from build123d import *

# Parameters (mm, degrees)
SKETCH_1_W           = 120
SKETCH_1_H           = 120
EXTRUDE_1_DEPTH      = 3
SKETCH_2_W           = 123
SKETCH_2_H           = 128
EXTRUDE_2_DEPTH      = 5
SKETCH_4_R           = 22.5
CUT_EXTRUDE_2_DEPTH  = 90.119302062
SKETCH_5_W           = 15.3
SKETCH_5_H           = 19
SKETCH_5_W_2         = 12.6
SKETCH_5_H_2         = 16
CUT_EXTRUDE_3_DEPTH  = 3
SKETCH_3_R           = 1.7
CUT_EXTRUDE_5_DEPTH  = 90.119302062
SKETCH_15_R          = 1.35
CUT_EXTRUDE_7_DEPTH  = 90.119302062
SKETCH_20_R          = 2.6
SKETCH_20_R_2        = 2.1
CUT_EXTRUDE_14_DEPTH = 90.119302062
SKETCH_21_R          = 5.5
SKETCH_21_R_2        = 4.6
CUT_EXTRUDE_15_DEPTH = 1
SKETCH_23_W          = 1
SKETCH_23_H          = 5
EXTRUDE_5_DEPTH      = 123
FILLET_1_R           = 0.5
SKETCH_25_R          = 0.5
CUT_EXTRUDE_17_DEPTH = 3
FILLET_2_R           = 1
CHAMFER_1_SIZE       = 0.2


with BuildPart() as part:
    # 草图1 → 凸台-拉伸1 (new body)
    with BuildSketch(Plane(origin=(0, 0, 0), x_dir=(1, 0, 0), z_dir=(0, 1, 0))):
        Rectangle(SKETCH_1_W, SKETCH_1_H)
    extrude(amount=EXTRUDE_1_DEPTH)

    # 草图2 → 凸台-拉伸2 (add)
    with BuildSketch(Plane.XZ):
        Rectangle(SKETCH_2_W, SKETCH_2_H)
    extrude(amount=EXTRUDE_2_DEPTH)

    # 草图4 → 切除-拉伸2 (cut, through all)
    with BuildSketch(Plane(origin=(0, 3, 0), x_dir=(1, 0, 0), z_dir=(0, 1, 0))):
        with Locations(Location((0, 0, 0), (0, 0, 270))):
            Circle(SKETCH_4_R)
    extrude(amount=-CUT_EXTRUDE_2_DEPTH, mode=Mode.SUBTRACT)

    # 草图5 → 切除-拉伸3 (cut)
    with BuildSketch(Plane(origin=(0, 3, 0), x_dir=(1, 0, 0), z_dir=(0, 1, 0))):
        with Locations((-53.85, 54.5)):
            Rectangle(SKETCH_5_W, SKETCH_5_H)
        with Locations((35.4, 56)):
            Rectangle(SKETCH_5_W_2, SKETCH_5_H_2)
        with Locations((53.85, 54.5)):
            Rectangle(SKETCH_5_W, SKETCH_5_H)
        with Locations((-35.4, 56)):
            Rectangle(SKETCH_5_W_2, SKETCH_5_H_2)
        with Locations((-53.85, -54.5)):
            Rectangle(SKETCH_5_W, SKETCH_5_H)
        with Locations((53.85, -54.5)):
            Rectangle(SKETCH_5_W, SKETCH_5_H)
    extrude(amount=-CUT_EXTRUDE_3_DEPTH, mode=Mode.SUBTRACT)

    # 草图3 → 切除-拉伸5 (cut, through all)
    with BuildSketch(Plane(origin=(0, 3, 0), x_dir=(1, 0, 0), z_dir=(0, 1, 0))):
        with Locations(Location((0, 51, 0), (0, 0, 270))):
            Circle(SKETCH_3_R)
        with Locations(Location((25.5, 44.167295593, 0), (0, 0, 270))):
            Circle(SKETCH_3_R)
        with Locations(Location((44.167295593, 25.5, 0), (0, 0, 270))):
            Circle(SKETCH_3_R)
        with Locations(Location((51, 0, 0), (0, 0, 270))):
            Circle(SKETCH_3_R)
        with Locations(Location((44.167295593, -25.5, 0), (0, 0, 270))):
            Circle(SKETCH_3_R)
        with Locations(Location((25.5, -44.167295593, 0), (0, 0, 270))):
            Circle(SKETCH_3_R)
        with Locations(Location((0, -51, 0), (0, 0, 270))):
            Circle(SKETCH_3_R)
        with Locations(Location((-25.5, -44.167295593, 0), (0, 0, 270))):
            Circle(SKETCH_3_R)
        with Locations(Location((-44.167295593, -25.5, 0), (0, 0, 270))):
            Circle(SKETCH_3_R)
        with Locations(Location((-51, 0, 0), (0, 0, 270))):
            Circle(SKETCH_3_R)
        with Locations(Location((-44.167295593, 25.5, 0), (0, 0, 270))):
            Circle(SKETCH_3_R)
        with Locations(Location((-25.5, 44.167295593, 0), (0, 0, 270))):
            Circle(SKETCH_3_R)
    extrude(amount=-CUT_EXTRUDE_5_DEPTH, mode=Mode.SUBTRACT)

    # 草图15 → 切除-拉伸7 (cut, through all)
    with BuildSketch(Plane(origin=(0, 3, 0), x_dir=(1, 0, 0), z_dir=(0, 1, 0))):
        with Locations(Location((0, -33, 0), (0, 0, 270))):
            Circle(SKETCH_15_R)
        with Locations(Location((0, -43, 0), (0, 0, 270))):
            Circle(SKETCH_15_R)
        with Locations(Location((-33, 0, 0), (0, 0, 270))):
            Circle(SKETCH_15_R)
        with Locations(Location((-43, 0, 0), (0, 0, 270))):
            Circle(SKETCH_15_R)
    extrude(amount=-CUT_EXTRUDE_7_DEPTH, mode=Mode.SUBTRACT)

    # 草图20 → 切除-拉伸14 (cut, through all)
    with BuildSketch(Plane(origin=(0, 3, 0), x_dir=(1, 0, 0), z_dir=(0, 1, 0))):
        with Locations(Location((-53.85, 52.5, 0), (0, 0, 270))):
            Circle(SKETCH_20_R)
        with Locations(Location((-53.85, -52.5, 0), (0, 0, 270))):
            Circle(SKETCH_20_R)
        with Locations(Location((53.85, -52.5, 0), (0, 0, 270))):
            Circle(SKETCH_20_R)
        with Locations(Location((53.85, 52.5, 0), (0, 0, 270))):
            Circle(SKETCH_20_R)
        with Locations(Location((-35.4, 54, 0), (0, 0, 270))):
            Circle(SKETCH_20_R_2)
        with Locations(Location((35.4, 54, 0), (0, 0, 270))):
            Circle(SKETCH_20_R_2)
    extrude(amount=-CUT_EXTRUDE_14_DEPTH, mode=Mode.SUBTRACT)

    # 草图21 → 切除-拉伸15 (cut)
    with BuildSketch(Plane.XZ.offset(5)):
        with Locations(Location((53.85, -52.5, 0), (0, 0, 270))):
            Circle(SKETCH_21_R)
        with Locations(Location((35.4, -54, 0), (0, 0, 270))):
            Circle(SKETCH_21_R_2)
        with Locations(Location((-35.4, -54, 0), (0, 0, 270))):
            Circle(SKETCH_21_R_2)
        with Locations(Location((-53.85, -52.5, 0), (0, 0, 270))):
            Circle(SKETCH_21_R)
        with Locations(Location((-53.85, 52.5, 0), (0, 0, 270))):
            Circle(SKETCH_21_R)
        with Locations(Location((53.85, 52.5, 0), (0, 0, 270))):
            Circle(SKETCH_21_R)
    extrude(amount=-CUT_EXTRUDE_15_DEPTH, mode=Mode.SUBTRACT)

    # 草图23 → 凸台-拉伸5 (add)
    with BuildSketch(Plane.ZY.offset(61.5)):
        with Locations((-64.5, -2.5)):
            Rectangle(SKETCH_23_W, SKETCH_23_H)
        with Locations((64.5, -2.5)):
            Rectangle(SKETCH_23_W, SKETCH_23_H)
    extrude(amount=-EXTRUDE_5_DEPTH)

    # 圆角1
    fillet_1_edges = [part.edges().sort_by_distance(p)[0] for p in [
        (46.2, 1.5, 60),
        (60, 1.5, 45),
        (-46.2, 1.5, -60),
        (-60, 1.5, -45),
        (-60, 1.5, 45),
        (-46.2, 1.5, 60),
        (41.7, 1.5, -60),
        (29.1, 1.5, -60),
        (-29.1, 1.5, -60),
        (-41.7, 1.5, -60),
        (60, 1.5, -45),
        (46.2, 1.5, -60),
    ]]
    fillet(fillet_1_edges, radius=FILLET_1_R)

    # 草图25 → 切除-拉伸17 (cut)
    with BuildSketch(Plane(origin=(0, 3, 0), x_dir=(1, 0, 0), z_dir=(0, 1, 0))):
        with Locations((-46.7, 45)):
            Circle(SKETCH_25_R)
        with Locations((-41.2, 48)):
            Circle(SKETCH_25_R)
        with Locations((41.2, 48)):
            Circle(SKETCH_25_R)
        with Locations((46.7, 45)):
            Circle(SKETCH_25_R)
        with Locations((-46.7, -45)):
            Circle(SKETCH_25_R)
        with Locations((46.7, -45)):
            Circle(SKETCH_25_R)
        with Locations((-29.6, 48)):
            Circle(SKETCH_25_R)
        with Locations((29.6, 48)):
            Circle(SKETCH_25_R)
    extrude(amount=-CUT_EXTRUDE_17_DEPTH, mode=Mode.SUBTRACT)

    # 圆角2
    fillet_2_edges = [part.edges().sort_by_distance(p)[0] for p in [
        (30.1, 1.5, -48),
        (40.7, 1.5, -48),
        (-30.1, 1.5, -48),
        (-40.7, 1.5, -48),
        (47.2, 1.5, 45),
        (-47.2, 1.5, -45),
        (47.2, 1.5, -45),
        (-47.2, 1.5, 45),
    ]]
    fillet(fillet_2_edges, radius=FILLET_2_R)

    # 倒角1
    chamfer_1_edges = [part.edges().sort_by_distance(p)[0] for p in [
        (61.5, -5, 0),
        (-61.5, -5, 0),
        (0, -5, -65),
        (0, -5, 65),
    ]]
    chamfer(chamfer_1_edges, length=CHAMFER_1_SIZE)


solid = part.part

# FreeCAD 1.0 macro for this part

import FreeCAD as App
import Part
import Sketcher
Q = App.Units.Quantity


def edges_at(feature, points):
    """Names of the edges that pass closest to the given points."""
    edges = feature.Shape.Edges
    near = lambda p: min(range(len(edges)), key=lambda i: edges[i].distToShape(Part.Vertex(*p))[0])
    return sorted({f"Edge{near(p) + 1}" for p in points})


def add_polygon(sketch, points):
    """Adds a closed chain of lines whose ends are joined by coincident constraints."""
    first, n = sketch.GeometryCount, len(points)
    for a, b in zip(points, points[1:] + points[:1]):
        sketch.addGeometry(Part.LineSegment(App.Vector(*a, 0), App.Vector(*b, 0)), False)
    for i in range(n):
        sketch.addConstraint(Sketcher.Constraint("Coincident", first + i, 2, first + (i + 1) % n, 1))

doc = App.newDocument("Part")
body = doc.addObject("PartDesign::Body", "Body")

sketch1 = body.newObject("Sketcher::SketchObject", "Sketch")
sketch1.AttachmentSupport = (doc.getObject("XZ_Plane"), [""])
sketch1.MapMode = "FlatFace"
add_polygon(sketch1, [(-60, -60), (-60, 60), (60, 60), (60, -60)])
sketch1.addConstraint([
    Sketcher.Constraint("Vertical", 0),
    Sketcher.Constraint("Horizontal", 1),
    Sketcher.Constraint("Vertical", 2),
    Sketcher.Constraint("Horizontal", 3),
    Sketcher.Constraint("Symmetric", 0, 2, 2, 2, -1, 1),
    Sketcher.Constraint("Equal", 3, 0),
    Sketcher.Constraint("DistanceX", 1, 1, 1, 2, Q("120 mm")),
])
pad1 = body.newObject("PartDesign::Pad", "Pad")
pad1.Profile = sketch1
pad1.Length = 3
pad1.Reversed = True

sketch2 = body.newObject("Sketcher::SketchObject", "Sketch001")
sketch2.AttachmentSupport = (doc.getObject("XZ_Plane"), [""])
sketch2.MapMode = "FlatFace"
add_polygon(sketch2, [(-62, 64), (-62, -64), (62, -64), (62, 64)])
sketch2.addConstraint([
    Sketcher.Constraint("Vertical", 0),
    Sketcher.Constraint("Horizontal", 1),
    Sketcher.Constraint("Vertical", 2),
    Sketcher.Constraint("Horizontal", 3),
    Sketcher.Constraint("Symmetric", 0, 2, 2, 2, -1, 1),
    Sketcher.Constraint("DistanceX", 1, 1, 1, 2, Q("123 mm")),
    Sketcher.Constraint("DistanceY", 0, 2, 0, 1, Q("128 mm")),
])
pad2 = body.newObject("PartDesign::Pad", "Pad001")
pad2.Profile = sketch2
pad2.Length = 5

sketch3 = body.newObject("Sketcher::SketchObject", "Sketch002")
sketch3.AttachmentSupport = (doc.getObject("XZ_Plane"), [""])
sketch3.MapMode = "FlatFace"
sketch3.AttachmentOffset = App.Placement(App.Vector(0, 0, -3), App.Rotation())
sketch3.addGeometry(Part.Circle(App.Vector(0, 0, 0), App.Vector(0, 0, 1), 22), False)
sketch3.addConstraint([
    Sketcher.Constraint("Coincident", 0, 3, -1, 1),
    Sketcher.Constraint("Diameter", 0, Q("45 mm")),
])
pocket1 = body.newObject("PartDesign::Pocket", "Pocket")
pocket1.Profile = sketch3
pocket1.Type = "ThroughAll"
pocket1.Reversed = True

sketch4 = body.newObject("Sketcher::SketchObject", "Sketch003")
sketch4.AttachmentSupport = (doc.getObject("XZ_Plane"), [""])
sketch4.MapMode = "FlatFace"
sketch4.AttachmentOffset = App.Placement(App.Vector(0, 0, -3), App.Rotation())
add_polygon(sketch4, [(-62, -64), (-62, -45), (-46, -45), (-46, -64)])
add_polygon(sketch4, [(29, -64), (29, -48), (42, -48), (42, -64)])
add_polygon(sketch4, [(46, -64), (46, -45), (62, -45), (62, -64)])
add_polygon(sketch4, [(-42, -64), (-42, -48), (-29, -48), (-29, -64)])
add_polygon(sketch4, [(-62, 45), (-62, 64), (-46, 64), (-46, 45)])
add_polygon(sketch4, [(46, 45), (46, 64), (62, 64), (62, 45)])
sketch4.addConstraint([
    Sketcher.Constraint("Vertical", 0),
    Sketcher.Constraint("Horizontal", 1),
    Sketcher.Constraint("Vertical", 2),
    Sketcher.Constraint("Horizontal", 3),
    Sketcher.Constraint("Vertical", 4),
    Sketcher.Constraint("Horizontal", 5),
    Sketcher.Constraint("Vertical", 6),
    Sketcher.Constraint("Horizontal", 7),
    Sketcher.Constraint("Vertical", 8),
    Sketcher.Constraint("Horizontal", 9),
    Sketcher.Constraint("Vertical", 10),
    Sketcher.Constraint("Horizontal", 11),
    Sketcher.Constraint("Vertical", 12),
    Sketcher.Constraint("Horizontal", 13),
    Sketcher.Constraint("Vertical", 14),
    Sketcher.Constraint("Horizontal", 15),
    Sketcher.Constraint("Vertical", 16),
    Sketcher.Constraint("Horizontal", 17),
    Sketcher.Constraint("Vertical", 18),
    Sketcher.Constraint("Horizontal", 19),
    Sketcher.Constraint("Vertical", 20),
    Sketcher.Constraint("Horizontal", 21),
    Sketcher.Constraint("Vertical", 22),
    Sketcher.Constraint("Horizontal", 23),
    Sketcher.Constraint("Symmetric", 10, 2, 16, 2, -1, 1),
    Sketcher.Constraint("Symmetric", 8, 2, 18, 2, -1, 1),
    Sketcher.Constraint("Symmetric", 2, 2, 20, 2, -1, 1),
    Sketcher.Constraint("Symmetric", 0, 2, 22, 2, -1, 1),
    Sketcher.Constraint("Symmetric", 1, 2, 8, 2, -2),
    Sketcher.Constraint("Symmetric", 3, 2, 10, 2, -2),
    Sketcher.Constraint("Symmetric", 5, 2, 12, 2, -2),
    Sketcher.Constraint("Symmetric", 7, 2, 14, 2, -2),
    Sketcher.Constraint("Horizontal", 3, 2, 6, 2),
    Sketcher.Constraint("DistanceY", 0, 1, 0, 2, Q("19 mm")),
    Sketcher.Constraint("DistanceY", 4, 1, 4, 2, Q("16 mm")),
    Sketcher.Constraint("DistanceX", 1, 1, 1, 2, Q("15.3 mm")),
    Sketcher.Constraint("DistanceX", 5, 1, 5, 2, Q("12.6 mm")),
    Sketcher.Constraint("DistanceY", 0, 2, -1, 1, Q("45 mm")),
    Sketcher.Constraint("DistanceX", 0, 2, -1, 1, Q("61.5 mm")),
    Sketcher.Constraint("DistanceX", -1, 1, 4, 2, Q("29.1 mm")),
])
pocket2 = body.newObject("PartDesign::Pocket", "Pocket001")
pocket2.Profile = sketch4
pocket2.Length = 3
pocket2.Reversed = True

sketch5 = body.newObject("Sketcher::SketchObject", "Sketch004")
sketch5.AttachmentSupport = (doc.getObject("XZ_Plane"), [""])
sketch5.MapMode = "FlatFace"
sketch5.AttachmentOffset = App.Placement(App.Vector(0, 0, -3), App.Rotation())
sketch5.addGeometry([
    Part.Circle(App.Vector(0, -51, 0), App.Vector(0, 0, 1), 1.7),
    Part.Circle(App.Vector(25.5, -44.2, 0), App.Vector(0, 0, 1), 1.7),
    Part.Circle(App.Vector(44.2, -25.5, 0), App.Vector(0, 0, 1), 1.7),
    Part.Circle(App.Vector(51, 0, 0), App.Vector(0, 0, 1), 1.7),
    Part.Circle(App.Vector(44.2, 25.5, 0), App.Vector(0, 0, 1), 1.7),
    Part.Circle(App.Vector(25.5, 44.2, 0), App.Vector(0, 0, 1), 1.7),
    Part.Circle(App.Vector(0, 51, 0), App.Vector(0, 0, 1), 1.7),
    Part.Circle(App.Vector(-25.5, 44.2, 0), App.Vector(0, 0, 1), 1.7),
    Part.Circle(App.Vector(-44.2, 25.5, 0), App.Vector(0, 0, 1), 1.7),
    Part.Circle(App.Vector(-51, 0, 0), App.Vector(0, 0, 1), 1.7),
    Part.Circle(App.Vector(-44.2, -25.5, 0), App.Vector(0, 0, 1), 1.7),
    Part.Circle(App.Vector(-25.5, -44.2, 0), App.Vector(0, 0, 1), 1.7),
], False)
sketch5.addConstraint([
    Sketcher.Constraint("Equal", 0, 1),
    Sketcher.Constraint("Equal", 1, 2),
    Sketcher.Constraint("Equal", 2, 3),
    Sketcher.Constraint("Equal", 3, 4),
    Sketcher.Constraint("Equal", 4, 5),
    Sketcher.Constraint("Equal", 5, 6),
    Sketcher.Constraint("Equal", 6, 7),
    Sketcher.Constraint("Equal", 7, 8),
    Sketcher.Constraint("Equal", 8, 9),
    Sketcher.Constraint("Equal", 9, 10),
    Sketcher.Constraint("Equal", 10, 11),
    Sketcher.Constraint("Symmetric", 0, 3, 6, 3, -1, 1),
    Sketcher.Constraint("Symmetric", 1, 3, 7, 3, -1, 1),
    Sketcher.Constraint("Symmetric", 2, 3, 8, 3, -1, 1),
    Sketcher.Constraint("Symmetric", 3, 3, 9, 3, -1, 1),
    Sketcher.Constraint("Symmetric", 4, 3, 10, 3, -1, 1),
    Sketcher.Constraint("Symmetric", 5, 3, 11, 3, -1, 1),
    Sketcher.Constraint("Symmetric", 5, 3, 7, 3, -2),
    Sketcher.Constraint("Symmetric", 4, 3, 8, 3, -2),
    Sketcher.Constraint("PointOnObject", 0, 3, -2),
    Sketcher.Constraint("PointOnObject", 3, 3, -1),
    Sketcher.Constraint("Diameter", 0, Q("3.4 mm")),
    Sketcher.Constraint("DistanceY", 0, 3, -1, 1, Q("51 mm")),
    Sketcher.Constraint("DistanceX", -1, 1, 3, 3, Q("51 mm")),
    Sketcher.Constraint("DistanceY", 2, 3, 4, 3, Q("51 mm")),
    Sketcher.Constraint("DistanceX", 7, 3, 5, 3, Q("51 mm")),
    Sketcher.Constraint("DistanceY", 1, 3, 5, 3, Q("88.334591 mm")),
    Sketcher.Constraint("DistanceX", 8, 3, 4, 3, Q("88.334591 mm")),
])
pocket3 = body.newObject("PartDesign::Pocket", "Pocket002")
pocket3.Profile = sketch5
pocket3.Type = "ThroughAll"
pocket3.Reversed = True

sketch6 = body.newObject("Sketcher::SketchObject", "Sketch005")
sketch6.AttachmentSupport = (doc.getObject("XZ_Plane"), [""])
sketch6.MapMode = "FlatFace"
sketch6.AttachmentOffset = App.Placement(App.Vector(0, 0, -3), App.Rotation())
sketch6.addGeometry([
    Part.Circle(App.Vector(0, 33, 0), App.Vector(0, 0, 1), 1.4),
    Part.Circle(App.Vector(0, 43, 0), App.Vector(0, 0, 1), 1.4),
    Part.Circle(App.Vector(-33, 0, 0), App.Vector(0, 0, 1), 1.4),
    Part.Circle(App.Vector(-43, 0, 0), App.Vector(0, 0, 1), 1.4),
], False)
sketch6.addConstraint([
    Sketcher.Constraint("Equal", 0, 1),
    Sketcher.Constraint("Equal", 1, 2),
    Sketcher.Constraint("Equal", 2, 3),
    Sketcher.Constraint("PointOnObject", 0, 3, -2),
    Sketcher.Constraint("PointOnObject", 1, 3, -2),
    Sketcher.Constraint("PointOnObject", 2, 3, -1),
    Sketcher.Constraint("PointOnObject", 3, 3, -1),
    Sketcher.Constraint("Diameter", 0, Q("2.7 mm")),
    Sketcher.Constraint("DistanceY", -1, 1, 0, 3, Q("33 mm")),
    Sketcher.Constraint("DistanceY", -1, 1, 1, 3, Q("43 mm")),
    Sketcher.Constraint("DistanceX", 2, 3, -1, 1, Q("33 mm")),
    Sketcher.Constraint("DistanceX", 3, 3, -1, 1, Q("43 mm")),
])
pocket4 = body.newObject("PartDesign::Pocket", "Pocket003")
pocket4.Profile = sketch6
pocket4.Type = "ThroughAll"
pocket4.Reversed = True

sketch7 = body.newObject("Sketcher::SketchObject", "Sketch006")
sketch7.AttachmentSupport = (doc.getObject("XZ_Plane"), [""])
sketch7.MapMode = "FlatFace"
sketch7.AttachmentOffset = App.Placement(App.Vector(0, 0, -3), App.Rotation())
sketch7.addGeometry([
    Part.Circle(App.Vector(-53.9, -52.5, 0), App.Vector(0, 0, 1), 2.6),
    Part.Circle(App.Vector(-53.9, 52.5, 0), App.Vector(0, 0, 1), 2.6),
    Part.Circle(App.Vector(53.9, 52.5, 0), App.Vector(0, 0, 1), 2.6),
    Part.Circle(App.Vector(53.9, -52.5, 0), App.Vector(0, 0, 1), 2.6),
    Part.Circle(App.Vector(-35.4, -54, 0), App.Vector(0, 0, 1), 2.1),
    Part.Circle(App.Vector(35.4, -54, 0), App.Vector(0, 0, 1), 2.1),
], False)
sketch7.addConstraint([
    Sketcher.Constraint("Equal", 0, 1),
    Sketcher.Constraint("Equal", 1, 2),
    Sketcher.Constraint("Equal", 2, 3),
    Sketcher.Constraint("Equal", 4, 5),
    Sketcher.Constraint("Symmetric", 0, 3, 2, 3, -1, 1),
    Sketcher.Constraint("Symmetric", 1, 3, 3, 3, -1, 1),
    Sketcher.Constraint("Symmetric", 1, 3, 2, 3, -2),
    Sketcher.Constraint("Symmetric", 4, 3, 5, 3, -2),
    Sketcher.Constraint("Diameter", 0, Q("5.2 mm")),
    Sketcher.Constraint("Diameter", 4, Q("4.2 mm")),
    Sketcher.Constraint("DistanceY", 4, 3, -1, 1, Q("54 mm")),
    Sketcher.Constraint("DistanceY", 0, 3, 1, 3, Q("105 mm")),
    Sketcher.Constraint("DistanceX", 4, 3, -1, 1, Q("35.4 mm")),
    Sketcher.Constraint("DistanceX", 1, 3, 2, 3, Q("107.7 mm")),
])
pocket5 = body.newObject("PartDesign::Pocket", "Pocket004")
pocket5.Profile = sketch7
pocket5.Type = "ThroughAll"
pocket5.Reversed = True

sketch8 = body.newObject("Sketcher::SketchObject", "Sketch007")
sketch8.AttachmentSupport = (doc.getObject("XZ_Plane"), [""])
sketch8.MapMode = "FlatFace"
sketch8.AttachmentOffset = App.Placement(App.Vector(0, 0, 5), App.Rotation())
sketch8.addGeometry([
    Part.Circle(App.Vector(53.9, -52.5, 0), App.Vector(0, 0, 1), 5.5),
    Part.Circle(App.Vector(35.4, -54, 0), App.Vector(0, 0, 1), 4.6),
    Part.Circle(App.Vector(-35.4, -54, 0), App.Vector(0, 0, 1), 4.6),
    Part.Circle(App.Vector(-53.9, -52.5, 0), App.Vector(0, 0, 1), 5.5),
    Part.Circle(App.Vector(-53.9, 52.5, 0), App.Vector(0, 0, 1), 5.5),
    Part.Circle(App.Vector(53.9, 52.5, 0), App.Vector(0, 0, 1), 5.5),
], False)
sketch8.addConstraint([
    Sketcher.Constraint("Equal", 1, 2),
    Sketcher.Constraint("Equal", 0, 3),
    Sketcher.Constraint("Equal", 3, 4),
    Sketcher.Constraint("Equal", 4, 5),
    Sketcher.Constraint("Symmetric", 0, 3, 4, 3, -1, 1),
    Sketcher.Constraint("Symmetric", 3, 3, 5, 3, -1, 1),
    Sketcher.Constraint("Symmetric", 1, 3, 2, 3, -2),
    Sketcher.Constraint("Symmetric", 0, 3, 3, 3, -2),
    Sketcher.Constraint("Diameter", 0, Q("11 mm")),
    Sketcher.Constraint("Diameter", 1, Q("9.2 mm")),
    Sketcher.Constraint("DistanceY", 1, 3, -1, 1, Q("54 mm")),
    Sketcher.Constraint("DistanceY", 3, 3, 4, 3, Q("105 mm")),
    Sketcher.Constraint("DistanceX", -1, 1, 1, 3, Q("35.4 mm")),
    Sketcher.Constraint("DistanceX", 3, 3, 0, 3, Q("107.7 mm")),
])
pocket6 = body.newObject("PartDesign::Pocket", "Pocket005")
pocket6.Profile = sketch8
pocket6.Length = 1

sketch9 = body.newObject("Sketcher::SketchObject", "Sketch008")
sketch9.AttachmentSupport = (doc.getObject("YZ_Plane"), [""])
sketch9.MapMode = "FlatFace"
sketch9.AttachmentOffset = App.Placement(App.Vector(0, 0, -61.5), App.Rotation())
add_polygon(sketch9, [(0, -65), (-5, -65), (-5, -64), (0, -64)])
add_polygon(sketch9, [(0, 64), (-5, 64), (-5, 65), (0, 65)])
sketch9.addConstraint([
    Sketcher.Constraint("Horizontal", 0),
    Sketcher.Constraint("Vertical", 1),
    Sketcher.Constraint("Horizontal", 2),
    Sketcher.Constraint("Vertical", 3),
    Sketcher.Constraint("Horizontal", 4),
    Sketcher.Constraint("Vertical", 5),
    Sketcher.Constraint("Horizontal", 6),
    Sketcher.Constraint("Vertical", 7),
    Sketcher.Constraint("Symmetric", 3, 2, 6, 2, -1, 1),
    Sketcher.Constraint("Symmetric", 1, 2, 4, 2, -1),
    Sketcher.Constraint("PointOnObject", 2, 2, -2),
    Sketcher.Constraint("DistanceX", 0, 2, 0, 1, Q("5 mm")),
    Sketcher.Constraint("DistanceY", 1, 1, 1, 2, Q("1 mm")),
    Sketcher.Constraint("DistanceY", 0, 2, -1, 1, Q("65 mm")),
])
pad3 = body.newObject("PartDesign::Pad", "Pad002")
pad3.Profile = sketch9
pad3.Length = 123
doc.recompute()

fillet = body.newObject("PartDesign::Fillet", "Fillet")
fillet.Base = (pad3, edges_at(pad3, [
    (46.2, 1.5, 60),
    (60, 1.5, 45),
    (-46.2, 1.5, -60),
    (-60, 1.5, -45),
    (-60, 1.5, 45),
    (-46.2, 1.5, 60),
    (41.7, 1.5, -60),
    (29.1, 1.5, -60),
    (-29.1, 1.5, -60),
    (-41.7, 1.5, -60),
    (60, 1.5, -45),
    (46.2, 1.5, -60),
]))
fillet.Radius = 0.5

sketch10 = body.newObject("Sketcher::SketchObject", "Sketch009")
sketch10.AttachmentSupport = (doc.getObject("XZ_Plane"), [""])
sketch10.MapMode = "FlatFace"
sketch10.AttachmentOffset = App.Placement(App.Vector(0, 0, -3), App.Rotation())
sketch10.addGeometry([
    Part.Circle(App.Vector(-46.7, -45, 0), App.Vector(0, 0, 1), 0.5),
    Part.Circle(App.Vector(-41.2, -48, 0), App.Vector(0, 0, 1), 0.5),
    Part.Circle(App.Vector(41.2, -48, 0), App.Vector(0, 0, 1), 0.5),
    Part.Circle(App.Vector(46.7, -45, 0), App.Vector(0, 0, 1), 0.5),
    Part.Circle(App.Vector(-46.7, 45, 0), App.Vector(0, 0, 1), 0.5),
    Part.Circle(App.Vector(46.7, 45, 0), App.Vector(0, 0, 1), 0.5),
    Part.Circle(App.Vector(-29.6, -48, 0), App.Vector(0, 0, 1), 0.5),
    Part.Circle(App.Vector(29.6, -48, 0), App.Vector(0, 0, 1), 0.5),
], False)
sketch10.addConstraint([
    Sketcher.Constraint("Equal", 0, 1),
    Sketcher.Constraint("Equal", 1, 2),
    Sketcher.Constraint("Equal", 2, 3),
    Sketcher.Constraint("Equal", 3, 4),
    Sketcher.Constraint("Equal", 4, 5),
    Sketcher.Constraint("Equal", 5, 6),
    Sketcher.Constraint("Equal", 6, 7),
    Sketcher.Constraint("Symmetric", 3, 3, 4, 3, -1, 1),
    Sketcher.Constraint("Symmetric", 0, 3, 5, 3, -1, 1),
    Sketcher.Constraint("Symmetric", 1, 3, 2, 3, -2),
    Sketcher.Constraint("Symmetric", 0, 3, 3, 3, -2),
    Sketcher.Constraint("Symmetric", 6, 3, 7, 3, -2),
    Sketcher.Constraint("Horizontal", 2, 3, 6, 3),
    Sketcher.Constraint("Diameter", 0, Q("1 mm")),
    Sketcher.Constraint("DistanceY", 0, 3, -1, 1, Q("45 mm")),
    Sketcher.Constraint("DistanceY", 1, 3, -1, 1, Q("48 mm")),
    Sketcher.Constraint("DistanceX", 0, 3, -1, 1, Q("46.7 mm")),
    Sketcher.Constraint("DistanceX", 1, 3, -1, 1, Q("41.2 mm")),
    Sketcher.Constraint("DistanceX", 6, 3, -1, 1, Q("29.6 mm")),
])
pocket7 = body.newObject("PartDesign::Pocket", "Pocket006")
pocket7.Profile = sketch10
pocket7.Length = 3
pocket7.Reversed = True
doc.recompute()

fillet2 = body.newObject("PartDesign::Fillet", "Fillet001")
fillet2.Base = (pocket7, edges_at(pocket7, [
    (30.1, 1.5, -48),
    (40.7, 1.5, -48),
    (-30.1, 1.5, -48),
    (-40.7, 1.5, -48),
    (47.2, 1.5, 45),
    (-47.2, 1.5, -45),
    (47.2, 1.5, -45),
    (-47.2, 1.5, 45),
]))
fillet2.Radius = 1
doc.recompute()

chamfer = body.newObject("PartDesign::Chamfer", "Chamfer")
chamfer.Base = (fillet2, edges_at(fillet2, [
    (61.5, -5, 0),
    (-61.5, -5, 0),
    (0, -5, -65),
    (0, -5, 65),
]))
chamfer.Size = 0.2

doc.recompute()
